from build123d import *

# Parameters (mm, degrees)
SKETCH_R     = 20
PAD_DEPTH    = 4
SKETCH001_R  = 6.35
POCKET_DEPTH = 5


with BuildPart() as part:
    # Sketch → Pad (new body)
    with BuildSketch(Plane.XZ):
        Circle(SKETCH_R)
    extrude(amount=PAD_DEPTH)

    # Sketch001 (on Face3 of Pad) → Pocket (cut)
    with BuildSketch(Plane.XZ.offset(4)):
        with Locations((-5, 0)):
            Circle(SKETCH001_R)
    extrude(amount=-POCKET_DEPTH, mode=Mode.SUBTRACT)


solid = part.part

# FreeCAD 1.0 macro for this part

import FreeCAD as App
import Part
import Sketcher

doc = App.newDocument("Part")
body = doc.addObject("PartDesign::Body", "Body")

# Sketch on XZ plane
sketch1 = doc.addObject("Sketcher::SketchObject", "Sketch")
body.addObject(sketch1)
sketch1.AttachmentSupport = (doc.XZ_Plane, [""])
sketch1.MapMode = "FlatFace"
sketch1.addGeometry(Part.Circle(App.Vector(0, 0, 0), App.Vector(0, 0, 1), 20), False)
sketch1.addConstraint([
    Sketcher.Constraint("Coincident", 0, 3, -1, 1),
    Sketcher.Constraint("Diameter", 0, 40.0),
])
pad1 = doc.addObject("PartDesign::Pad", "Pad")
body.addObject(pad1)
pad1.Profile = sketch1
pad1.Length = 4

# Sketch on XZ plane
sketch2 = doc.addObject("Sketcher::SketchObject", "Sketch001")
body.addObject(sketch2)
sketch2.AttachmentSupport = (doc.XZ_Plane, [""])
sketch2.MapMode = "FlatFace"
sketch2.AttachmentOffset = App.Placement(App.Vector(0, 0, 4), App.Rotation())
sketch2.addGeometry(Part.Circle(App.Vector(-5, 0, 0), App.Vector(0, 0, 1), 6), False)
sketch2.addConstraint([
    Sketcher.Constraint("PointOnObject", 0, 3, -1),
    Sketcher.Constraint("Diameter", 0, 12.7),
    Sketcher.Constraint("DistanceX", 0, 3, -1, 1, 5.0),
])
pocket1 = doc.addObject("PartDesign::Pocket", "Pocket")
body.addObject(pocket1)
pocket1.Profile = sketch2
pocket1.Length = 5

doc.recompute()
